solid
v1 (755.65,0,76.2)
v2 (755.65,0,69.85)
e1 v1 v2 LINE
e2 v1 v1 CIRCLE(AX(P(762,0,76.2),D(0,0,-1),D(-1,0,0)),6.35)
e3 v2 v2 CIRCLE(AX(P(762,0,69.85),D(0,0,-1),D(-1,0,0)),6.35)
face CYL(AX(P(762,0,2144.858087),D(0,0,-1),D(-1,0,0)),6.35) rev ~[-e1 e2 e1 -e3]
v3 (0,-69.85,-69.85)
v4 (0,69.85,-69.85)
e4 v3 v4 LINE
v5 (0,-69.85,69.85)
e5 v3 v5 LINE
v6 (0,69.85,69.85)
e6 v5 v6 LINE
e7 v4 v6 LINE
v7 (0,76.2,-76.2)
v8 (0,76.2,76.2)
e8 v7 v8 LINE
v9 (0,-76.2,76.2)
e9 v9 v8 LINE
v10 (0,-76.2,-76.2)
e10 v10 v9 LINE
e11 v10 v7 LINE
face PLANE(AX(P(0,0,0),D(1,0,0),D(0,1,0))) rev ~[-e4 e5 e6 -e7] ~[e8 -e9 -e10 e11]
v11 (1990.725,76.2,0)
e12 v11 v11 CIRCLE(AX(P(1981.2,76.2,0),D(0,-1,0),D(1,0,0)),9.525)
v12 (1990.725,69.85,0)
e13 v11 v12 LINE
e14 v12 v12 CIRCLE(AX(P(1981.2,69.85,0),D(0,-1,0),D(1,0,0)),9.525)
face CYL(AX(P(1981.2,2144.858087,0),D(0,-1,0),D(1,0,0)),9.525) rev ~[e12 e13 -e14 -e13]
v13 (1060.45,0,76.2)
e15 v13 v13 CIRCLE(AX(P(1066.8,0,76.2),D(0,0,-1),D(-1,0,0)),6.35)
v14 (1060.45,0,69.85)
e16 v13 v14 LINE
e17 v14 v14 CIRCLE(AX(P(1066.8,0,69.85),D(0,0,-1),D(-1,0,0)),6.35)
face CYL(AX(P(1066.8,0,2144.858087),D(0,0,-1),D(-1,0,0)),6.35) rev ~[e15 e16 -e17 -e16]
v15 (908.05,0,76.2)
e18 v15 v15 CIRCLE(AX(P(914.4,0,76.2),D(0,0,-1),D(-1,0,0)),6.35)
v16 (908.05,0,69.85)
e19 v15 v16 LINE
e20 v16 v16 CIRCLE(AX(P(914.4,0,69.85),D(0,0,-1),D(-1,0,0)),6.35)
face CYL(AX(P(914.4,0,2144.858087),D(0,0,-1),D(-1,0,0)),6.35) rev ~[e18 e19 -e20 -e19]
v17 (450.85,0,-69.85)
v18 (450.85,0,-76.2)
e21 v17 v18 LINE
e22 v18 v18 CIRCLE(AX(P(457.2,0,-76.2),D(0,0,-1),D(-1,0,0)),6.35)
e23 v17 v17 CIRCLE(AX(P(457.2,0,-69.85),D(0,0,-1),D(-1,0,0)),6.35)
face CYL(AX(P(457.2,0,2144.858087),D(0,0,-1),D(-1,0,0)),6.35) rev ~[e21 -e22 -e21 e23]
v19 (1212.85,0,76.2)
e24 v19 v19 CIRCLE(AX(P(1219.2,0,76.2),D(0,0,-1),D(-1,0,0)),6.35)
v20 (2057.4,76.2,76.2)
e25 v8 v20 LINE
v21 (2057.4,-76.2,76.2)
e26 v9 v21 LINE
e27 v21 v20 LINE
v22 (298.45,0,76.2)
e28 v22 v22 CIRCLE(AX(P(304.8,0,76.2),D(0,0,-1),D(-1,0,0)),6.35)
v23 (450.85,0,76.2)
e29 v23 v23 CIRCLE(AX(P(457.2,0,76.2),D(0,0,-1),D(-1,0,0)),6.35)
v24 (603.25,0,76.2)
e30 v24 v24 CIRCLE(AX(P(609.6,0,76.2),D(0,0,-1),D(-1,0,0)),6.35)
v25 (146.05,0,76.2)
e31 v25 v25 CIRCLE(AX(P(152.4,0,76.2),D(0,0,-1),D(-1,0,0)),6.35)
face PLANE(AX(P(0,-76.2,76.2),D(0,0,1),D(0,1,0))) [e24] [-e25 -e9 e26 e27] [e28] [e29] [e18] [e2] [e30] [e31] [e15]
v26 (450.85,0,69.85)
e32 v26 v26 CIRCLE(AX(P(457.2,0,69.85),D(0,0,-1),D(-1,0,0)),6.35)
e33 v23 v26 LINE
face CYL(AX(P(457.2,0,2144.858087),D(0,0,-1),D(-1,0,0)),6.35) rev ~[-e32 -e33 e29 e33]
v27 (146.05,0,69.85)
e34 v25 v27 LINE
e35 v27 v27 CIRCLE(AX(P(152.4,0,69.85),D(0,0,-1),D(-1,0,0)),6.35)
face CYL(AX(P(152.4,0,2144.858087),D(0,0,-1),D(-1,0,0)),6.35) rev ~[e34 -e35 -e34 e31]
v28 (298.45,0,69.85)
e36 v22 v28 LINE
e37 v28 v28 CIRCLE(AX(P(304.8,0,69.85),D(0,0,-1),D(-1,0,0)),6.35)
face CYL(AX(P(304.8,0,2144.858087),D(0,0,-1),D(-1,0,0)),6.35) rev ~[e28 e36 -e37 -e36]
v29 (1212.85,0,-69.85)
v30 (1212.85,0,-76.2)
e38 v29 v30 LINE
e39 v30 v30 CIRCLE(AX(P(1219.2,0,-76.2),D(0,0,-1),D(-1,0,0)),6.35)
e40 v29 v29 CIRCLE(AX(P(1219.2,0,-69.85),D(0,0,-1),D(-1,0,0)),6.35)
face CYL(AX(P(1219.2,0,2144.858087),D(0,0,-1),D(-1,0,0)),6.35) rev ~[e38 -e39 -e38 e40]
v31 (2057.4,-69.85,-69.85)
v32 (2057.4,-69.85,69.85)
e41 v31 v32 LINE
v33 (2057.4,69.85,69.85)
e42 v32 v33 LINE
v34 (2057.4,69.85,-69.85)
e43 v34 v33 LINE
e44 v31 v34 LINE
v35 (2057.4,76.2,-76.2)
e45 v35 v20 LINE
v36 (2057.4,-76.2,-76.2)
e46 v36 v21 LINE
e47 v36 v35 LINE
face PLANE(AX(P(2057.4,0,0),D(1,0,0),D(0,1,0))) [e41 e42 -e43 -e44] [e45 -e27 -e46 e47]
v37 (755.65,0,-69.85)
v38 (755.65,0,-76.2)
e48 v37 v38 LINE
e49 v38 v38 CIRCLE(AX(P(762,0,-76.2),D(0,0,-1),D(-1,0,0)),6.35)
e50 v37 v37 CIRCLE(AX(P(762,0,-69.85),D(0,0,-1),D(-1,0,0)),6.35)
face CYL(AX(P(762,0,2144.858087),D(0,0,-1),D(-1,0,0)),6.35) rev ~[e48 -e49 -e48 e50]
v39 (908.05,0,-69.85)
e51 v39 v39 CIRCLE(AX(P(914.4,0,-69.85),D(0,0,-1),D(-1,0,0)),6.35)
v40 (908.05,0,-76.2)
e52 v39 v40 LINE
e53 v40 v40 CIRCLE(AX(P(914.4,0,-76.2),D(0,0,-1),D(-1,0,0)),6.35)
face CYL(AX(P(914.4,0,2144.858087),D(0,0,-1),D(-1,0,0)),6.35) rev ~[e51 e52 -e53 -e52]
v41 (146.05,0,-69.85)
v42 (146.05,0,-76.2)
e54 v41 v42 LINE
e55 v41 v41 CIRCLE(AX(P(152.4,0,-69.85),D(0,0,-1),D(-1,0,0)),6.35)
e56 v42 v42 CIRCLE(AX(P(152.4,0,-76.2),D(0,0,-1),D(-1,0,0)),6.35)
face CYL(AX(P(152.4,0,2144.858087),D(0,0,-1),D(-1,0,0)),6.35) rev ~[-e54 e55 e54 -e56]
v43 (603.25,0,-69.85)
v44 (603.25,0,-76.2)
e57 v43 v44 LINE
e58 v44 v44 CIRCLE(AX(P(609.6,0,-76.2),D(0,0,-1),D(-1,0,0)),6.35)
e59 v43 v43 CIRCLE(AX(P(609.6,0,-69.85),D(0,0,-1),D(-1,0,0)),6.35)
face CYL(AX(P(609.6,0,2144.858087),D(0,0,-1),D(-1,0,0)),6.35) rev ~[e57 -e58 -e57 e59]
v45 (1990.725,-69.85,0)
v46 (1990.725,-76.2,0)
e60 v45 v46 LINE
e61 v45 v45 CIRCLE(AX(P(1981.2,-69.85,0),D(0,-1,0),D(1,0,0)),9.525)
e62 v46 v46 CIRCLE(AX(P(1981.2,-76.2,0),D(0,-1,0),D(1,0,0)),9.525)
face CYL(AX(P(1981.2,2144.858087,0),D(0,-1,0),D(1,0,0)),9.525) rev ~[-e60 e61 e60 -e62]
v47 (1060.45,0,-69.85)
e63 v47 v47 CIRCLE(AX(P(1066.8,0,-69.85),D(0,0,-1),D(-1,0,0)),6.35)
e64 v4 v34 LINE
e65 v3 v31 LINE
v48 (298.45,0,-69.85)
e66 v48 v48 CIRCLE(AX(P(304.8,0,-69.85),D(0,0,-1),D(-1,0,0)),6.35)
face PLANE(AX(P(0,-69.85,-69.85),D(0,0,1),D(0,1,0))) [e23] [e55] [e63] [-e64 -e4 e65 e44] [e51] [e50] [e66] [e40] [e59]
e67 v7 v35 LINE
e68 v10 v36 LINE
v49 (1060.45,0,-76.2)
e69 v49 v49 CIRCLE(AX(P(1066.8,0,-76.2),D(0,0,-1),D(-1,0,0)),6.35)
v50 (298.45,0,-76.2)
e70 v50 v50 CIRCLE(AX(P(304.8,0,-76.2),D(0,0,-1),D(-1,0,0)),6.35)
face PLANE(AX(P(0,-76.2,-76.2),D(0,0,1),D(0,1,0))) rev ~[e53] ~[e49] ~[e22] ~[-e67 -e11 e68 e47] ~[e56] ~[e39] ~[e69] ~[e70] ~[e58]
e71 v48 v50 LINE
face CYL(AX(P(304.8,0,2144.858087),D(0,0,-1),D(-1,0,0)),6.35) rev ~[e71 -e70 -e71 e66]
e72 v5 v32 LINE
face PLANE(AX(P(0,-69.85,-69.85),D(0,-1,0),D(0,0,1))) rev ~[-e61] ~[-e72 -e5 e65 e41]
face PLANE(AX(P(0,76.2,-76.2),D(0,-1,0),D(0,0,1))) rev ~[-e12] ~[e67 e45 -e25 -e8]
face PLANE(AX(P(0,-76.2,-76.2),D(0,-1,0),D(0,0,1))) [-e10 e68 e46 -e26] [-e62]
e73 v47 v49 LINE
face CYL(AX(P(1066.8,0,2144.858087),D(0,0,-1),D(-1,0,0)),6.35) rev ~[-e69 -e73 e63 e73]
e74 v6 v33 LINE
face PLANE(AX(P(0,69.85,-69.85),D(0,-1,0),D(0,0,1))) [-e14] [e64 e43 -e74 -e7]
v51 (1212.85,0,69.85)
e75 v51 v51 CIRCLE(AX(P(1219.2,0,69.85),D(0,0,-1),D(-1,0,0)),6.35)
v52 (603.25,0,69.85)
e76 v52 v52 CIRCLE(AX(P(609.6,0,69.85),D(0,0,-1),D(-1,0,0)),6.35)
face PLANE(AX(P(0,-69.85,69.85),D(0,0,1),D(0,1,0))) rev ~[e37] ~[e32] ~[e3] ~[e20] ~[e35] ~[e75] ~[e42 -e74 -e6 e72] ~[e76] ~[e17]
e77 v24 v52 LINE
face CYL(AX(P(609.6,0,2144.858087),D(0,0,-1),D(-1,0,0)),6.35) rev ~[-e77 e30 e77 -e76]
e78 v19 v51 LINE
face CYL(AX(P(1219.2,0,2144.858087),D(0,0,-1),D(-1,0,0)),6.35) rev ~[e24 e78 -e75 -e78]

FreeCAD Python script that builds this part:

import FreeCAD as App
import Part
import Sketcher
from FreeCAD import Vector
Q = App.Units.Quantity


def add_polygon(sketch, points):
    """Adds a closed chain of lines whose ends are joined by coincident constraints."""
    first, n = sketch.GeometryCount, len(points)
    for a, b in zip(points, points[1:] + points[:1]):
        sketch.addGeometry(Part.LineSegment(App.Vector(*a, 0), App.Vector(*b, 0)), False)
    for i in range(n):
        sketch.addConstraint(Sketcher.Constraint("Coincident", first + i, 2, first + (i + 1) % n, 1))

doc = App.newDocument("Part")
body = doc.addObject("PartDesign::Body", "Body")

# Sketch on YZ plane
sketch1 = doc.addObject("Sketcher::SketchObject", "Sketch")
body.addObject(sketch1)
sketch1.AttachmentSupport = (doc.YZ_Plane, [""])
sketch1.MapMode = "FlatFace"
add_polygon(sketch1, [(-76, 76), (-76, -76), (76, -76), (76, 76)])  # lines 0-3
add_polygon(sketch1, [(70, -70), (-70, -70), (-70, 70), (70, 70)])  # lines 4-7
sketch1.addConstraint([
    Sketcher.Constraint("Vertical", 0),
    Sketcher.Constraint("Horizontal", 1),
    Sketcher.Constraint("Vertical", 2),
    Sketcher.Constraint("Horizontal", 3),
    Sketcher.Constraint("Horizontal", 4),
    Sketcher.Constraint("Vertical", 5),
    Sketcher.Constraint("Horizontal", 6),
    Sketcher.Constraint("Vertical", 7),
    Sketcher.Constraint("Symmetric", 0, 2, 2, 2, -1, 1),
    Sketcher.Constraint("Symmetric", 4, 2, 6, 2, -1, 1),
    Sketcher.Constraint("Equal", 3, 0),
    Sketcher.Constraint("Equal", 6, 5),
    Sketcher.Constraint("DistanceX", 1, 1, 1, 2, Q("6 in")),
    Sketcher.Constraint("DistanceX", 4, 2, 4, 1, Q("5.5 in")),
])
pad1 = doc.addObject("PartDesign::Pad", "Pad")
body.addObject(pad1)
pad1.Profile = sketch1
pad1.Length = Q("81 in")

# Sketch on XY plane
sketch2 = doc.addObject("Sketcher::SketchObject", "Sketch001")
body.addObject(sketch2)
sketch2.AttachmentSupport = (doc.XY_Plane, [""])
sketch2.MapMode = "FlatFace"
sketch2.AttachmentOffset = App.Placement(Vector(0, 0, 3 * 25.4), App.Rotation())
sketch2.addGeometry([
    Part.Circle(Vector(152, 0, 0), Vector(0, 0, 1), 6),  # 0
    Part.Circle(Vector(305, 0, 0), Vector(0, 0, 1), 6),  # 1
    Part.Circle(Vector(457, 0, 0), Vector(0, 0, 1), 6),  # 2
    Part.Circle(Vector(610, 0, 0), Vector(0, 0, 1), 6),  # 3
    Part.Circle(Vector(762, 0, 0), Vector(0, 0, 1), 6),  # 4
    Part.Circle(Vector(914, 0, 0), Vector(0, 0, 1), 6),  # 5
    Part.Circle(Vector(1067, 0, 0), Vector(0, 0, 1), 6),  # 6
    Part.Circle(Vector(1219, 0, 0), Vector(0, 0, 1), 6),  # 7
], False)
sketch2.addConstraint([
    Sketcher.Constraint("Equal", 0, 1),
    Sketcher.Constraint("Equal", 1, 2),
    Sketcher.Constraint("Equal", 2, 3),
    Sketcher.Constraint("Equal", 3, 4),
    Sketcher.Constraint("Equal", 4, 5),
    Sketcher.Constraint("Equal", 5, 6),
    Sketcher.Constraint("Equal", 6, 7),
    Sketcher.Constraint("PointOnObject", 0, 3, -1),
    Sketcher.Constraint("PointOnObject", 1, 3, -1),
    Sketcher.Constraint("PointOnObject", 2, 3, -1),
    Sketcher.Constraint("PointOnObject", 3, 3, -1),
    Sketcher.Constraint("PointOnObject", 4, 3, -1),
    Sketcher.Constraint("PointOnObject", 5, 3, -1),
    Sketcher.Constraint("PointOnObject", 6, 3, -1),
    Sketcher.Constraint("PointOnObject", 7, 3, -1),
    Sketcher.Constraint("Diameter", 0, Q("0.5 in")),
    Sketcher.Constraint("DistanceX", -1, 1, 0, 3, Q("6 in")),
    Sketcher.Constraint("DistanceX", -1, 1, 1, 3, Q("12 in")),
    Sketcher.Constraint("DistanceX", -1, 1, 2, 3, Q("18 in")),
    Sketcher.Constraint("DistanceX", -1, 1, 3, 3, Q("24 in")),
    Sketcher.Constraint("DistanceX", -1, 1, 4, 3, Q("30 in")),
    Sketcher.Constraint("DistanceX", -1, 1, 5, 3, Q("36 in")),
    Sketcher.Constraint("DistanceX", -1, 1, 6, 3, Q("42 in")),
    Sketcher.Constraint("DistanceX", -1, 1, 7, 3, Q("48 in")),
])
doc.recompute()
hole = doc.addObject("PartDesign::Hole", "Hole")
body.addObject(hole)
hole.Profile = sketch2
hole.ThreadType = "None"
hole.Diameter = Q("0.5 in")
hole.DepthType = "ThroughAll"

# Sketch on XZ plane
sketch3 = doc.addObject("Sketcher::SketchObject", "Sketch002")
body.addObject(sketch3)
sketch3.AttachmentSupport = (doc.XZ_Plane, [""])
sketch3.MapMode = "FlatFace"
sketch3.AttachmentOffset = App.Placement(Vector(0, 0, -3 * 25.4), App.Rotation())
sketch3.addGeometry(Part.Circle(Vector(1981, 0, 0), Vector(0, 0, 1), 10), False)
sketch3.addConstraint([
    Sketcher.Constraint("PointOnObject", 0, 3, -1),
    Sketcher.Constraint("Diameter", 0, Q("0.75 in")),
    Sketcher.Constraint("DistanceX", -1, 1, 0, 3, Q("78 in")),
])
doc.recompute()
hole2 = doc.addObject("PartDesign::Hole", "Hole001")
body.addObject(hole2)
hole2.Profile = sketch3
hole2.ThreadType = "None"
hole2.Diameter = Q("0.75 in")
hole2.DepthType = "ThroughAll"
hole2.Reversed = True

doc.recompute()
